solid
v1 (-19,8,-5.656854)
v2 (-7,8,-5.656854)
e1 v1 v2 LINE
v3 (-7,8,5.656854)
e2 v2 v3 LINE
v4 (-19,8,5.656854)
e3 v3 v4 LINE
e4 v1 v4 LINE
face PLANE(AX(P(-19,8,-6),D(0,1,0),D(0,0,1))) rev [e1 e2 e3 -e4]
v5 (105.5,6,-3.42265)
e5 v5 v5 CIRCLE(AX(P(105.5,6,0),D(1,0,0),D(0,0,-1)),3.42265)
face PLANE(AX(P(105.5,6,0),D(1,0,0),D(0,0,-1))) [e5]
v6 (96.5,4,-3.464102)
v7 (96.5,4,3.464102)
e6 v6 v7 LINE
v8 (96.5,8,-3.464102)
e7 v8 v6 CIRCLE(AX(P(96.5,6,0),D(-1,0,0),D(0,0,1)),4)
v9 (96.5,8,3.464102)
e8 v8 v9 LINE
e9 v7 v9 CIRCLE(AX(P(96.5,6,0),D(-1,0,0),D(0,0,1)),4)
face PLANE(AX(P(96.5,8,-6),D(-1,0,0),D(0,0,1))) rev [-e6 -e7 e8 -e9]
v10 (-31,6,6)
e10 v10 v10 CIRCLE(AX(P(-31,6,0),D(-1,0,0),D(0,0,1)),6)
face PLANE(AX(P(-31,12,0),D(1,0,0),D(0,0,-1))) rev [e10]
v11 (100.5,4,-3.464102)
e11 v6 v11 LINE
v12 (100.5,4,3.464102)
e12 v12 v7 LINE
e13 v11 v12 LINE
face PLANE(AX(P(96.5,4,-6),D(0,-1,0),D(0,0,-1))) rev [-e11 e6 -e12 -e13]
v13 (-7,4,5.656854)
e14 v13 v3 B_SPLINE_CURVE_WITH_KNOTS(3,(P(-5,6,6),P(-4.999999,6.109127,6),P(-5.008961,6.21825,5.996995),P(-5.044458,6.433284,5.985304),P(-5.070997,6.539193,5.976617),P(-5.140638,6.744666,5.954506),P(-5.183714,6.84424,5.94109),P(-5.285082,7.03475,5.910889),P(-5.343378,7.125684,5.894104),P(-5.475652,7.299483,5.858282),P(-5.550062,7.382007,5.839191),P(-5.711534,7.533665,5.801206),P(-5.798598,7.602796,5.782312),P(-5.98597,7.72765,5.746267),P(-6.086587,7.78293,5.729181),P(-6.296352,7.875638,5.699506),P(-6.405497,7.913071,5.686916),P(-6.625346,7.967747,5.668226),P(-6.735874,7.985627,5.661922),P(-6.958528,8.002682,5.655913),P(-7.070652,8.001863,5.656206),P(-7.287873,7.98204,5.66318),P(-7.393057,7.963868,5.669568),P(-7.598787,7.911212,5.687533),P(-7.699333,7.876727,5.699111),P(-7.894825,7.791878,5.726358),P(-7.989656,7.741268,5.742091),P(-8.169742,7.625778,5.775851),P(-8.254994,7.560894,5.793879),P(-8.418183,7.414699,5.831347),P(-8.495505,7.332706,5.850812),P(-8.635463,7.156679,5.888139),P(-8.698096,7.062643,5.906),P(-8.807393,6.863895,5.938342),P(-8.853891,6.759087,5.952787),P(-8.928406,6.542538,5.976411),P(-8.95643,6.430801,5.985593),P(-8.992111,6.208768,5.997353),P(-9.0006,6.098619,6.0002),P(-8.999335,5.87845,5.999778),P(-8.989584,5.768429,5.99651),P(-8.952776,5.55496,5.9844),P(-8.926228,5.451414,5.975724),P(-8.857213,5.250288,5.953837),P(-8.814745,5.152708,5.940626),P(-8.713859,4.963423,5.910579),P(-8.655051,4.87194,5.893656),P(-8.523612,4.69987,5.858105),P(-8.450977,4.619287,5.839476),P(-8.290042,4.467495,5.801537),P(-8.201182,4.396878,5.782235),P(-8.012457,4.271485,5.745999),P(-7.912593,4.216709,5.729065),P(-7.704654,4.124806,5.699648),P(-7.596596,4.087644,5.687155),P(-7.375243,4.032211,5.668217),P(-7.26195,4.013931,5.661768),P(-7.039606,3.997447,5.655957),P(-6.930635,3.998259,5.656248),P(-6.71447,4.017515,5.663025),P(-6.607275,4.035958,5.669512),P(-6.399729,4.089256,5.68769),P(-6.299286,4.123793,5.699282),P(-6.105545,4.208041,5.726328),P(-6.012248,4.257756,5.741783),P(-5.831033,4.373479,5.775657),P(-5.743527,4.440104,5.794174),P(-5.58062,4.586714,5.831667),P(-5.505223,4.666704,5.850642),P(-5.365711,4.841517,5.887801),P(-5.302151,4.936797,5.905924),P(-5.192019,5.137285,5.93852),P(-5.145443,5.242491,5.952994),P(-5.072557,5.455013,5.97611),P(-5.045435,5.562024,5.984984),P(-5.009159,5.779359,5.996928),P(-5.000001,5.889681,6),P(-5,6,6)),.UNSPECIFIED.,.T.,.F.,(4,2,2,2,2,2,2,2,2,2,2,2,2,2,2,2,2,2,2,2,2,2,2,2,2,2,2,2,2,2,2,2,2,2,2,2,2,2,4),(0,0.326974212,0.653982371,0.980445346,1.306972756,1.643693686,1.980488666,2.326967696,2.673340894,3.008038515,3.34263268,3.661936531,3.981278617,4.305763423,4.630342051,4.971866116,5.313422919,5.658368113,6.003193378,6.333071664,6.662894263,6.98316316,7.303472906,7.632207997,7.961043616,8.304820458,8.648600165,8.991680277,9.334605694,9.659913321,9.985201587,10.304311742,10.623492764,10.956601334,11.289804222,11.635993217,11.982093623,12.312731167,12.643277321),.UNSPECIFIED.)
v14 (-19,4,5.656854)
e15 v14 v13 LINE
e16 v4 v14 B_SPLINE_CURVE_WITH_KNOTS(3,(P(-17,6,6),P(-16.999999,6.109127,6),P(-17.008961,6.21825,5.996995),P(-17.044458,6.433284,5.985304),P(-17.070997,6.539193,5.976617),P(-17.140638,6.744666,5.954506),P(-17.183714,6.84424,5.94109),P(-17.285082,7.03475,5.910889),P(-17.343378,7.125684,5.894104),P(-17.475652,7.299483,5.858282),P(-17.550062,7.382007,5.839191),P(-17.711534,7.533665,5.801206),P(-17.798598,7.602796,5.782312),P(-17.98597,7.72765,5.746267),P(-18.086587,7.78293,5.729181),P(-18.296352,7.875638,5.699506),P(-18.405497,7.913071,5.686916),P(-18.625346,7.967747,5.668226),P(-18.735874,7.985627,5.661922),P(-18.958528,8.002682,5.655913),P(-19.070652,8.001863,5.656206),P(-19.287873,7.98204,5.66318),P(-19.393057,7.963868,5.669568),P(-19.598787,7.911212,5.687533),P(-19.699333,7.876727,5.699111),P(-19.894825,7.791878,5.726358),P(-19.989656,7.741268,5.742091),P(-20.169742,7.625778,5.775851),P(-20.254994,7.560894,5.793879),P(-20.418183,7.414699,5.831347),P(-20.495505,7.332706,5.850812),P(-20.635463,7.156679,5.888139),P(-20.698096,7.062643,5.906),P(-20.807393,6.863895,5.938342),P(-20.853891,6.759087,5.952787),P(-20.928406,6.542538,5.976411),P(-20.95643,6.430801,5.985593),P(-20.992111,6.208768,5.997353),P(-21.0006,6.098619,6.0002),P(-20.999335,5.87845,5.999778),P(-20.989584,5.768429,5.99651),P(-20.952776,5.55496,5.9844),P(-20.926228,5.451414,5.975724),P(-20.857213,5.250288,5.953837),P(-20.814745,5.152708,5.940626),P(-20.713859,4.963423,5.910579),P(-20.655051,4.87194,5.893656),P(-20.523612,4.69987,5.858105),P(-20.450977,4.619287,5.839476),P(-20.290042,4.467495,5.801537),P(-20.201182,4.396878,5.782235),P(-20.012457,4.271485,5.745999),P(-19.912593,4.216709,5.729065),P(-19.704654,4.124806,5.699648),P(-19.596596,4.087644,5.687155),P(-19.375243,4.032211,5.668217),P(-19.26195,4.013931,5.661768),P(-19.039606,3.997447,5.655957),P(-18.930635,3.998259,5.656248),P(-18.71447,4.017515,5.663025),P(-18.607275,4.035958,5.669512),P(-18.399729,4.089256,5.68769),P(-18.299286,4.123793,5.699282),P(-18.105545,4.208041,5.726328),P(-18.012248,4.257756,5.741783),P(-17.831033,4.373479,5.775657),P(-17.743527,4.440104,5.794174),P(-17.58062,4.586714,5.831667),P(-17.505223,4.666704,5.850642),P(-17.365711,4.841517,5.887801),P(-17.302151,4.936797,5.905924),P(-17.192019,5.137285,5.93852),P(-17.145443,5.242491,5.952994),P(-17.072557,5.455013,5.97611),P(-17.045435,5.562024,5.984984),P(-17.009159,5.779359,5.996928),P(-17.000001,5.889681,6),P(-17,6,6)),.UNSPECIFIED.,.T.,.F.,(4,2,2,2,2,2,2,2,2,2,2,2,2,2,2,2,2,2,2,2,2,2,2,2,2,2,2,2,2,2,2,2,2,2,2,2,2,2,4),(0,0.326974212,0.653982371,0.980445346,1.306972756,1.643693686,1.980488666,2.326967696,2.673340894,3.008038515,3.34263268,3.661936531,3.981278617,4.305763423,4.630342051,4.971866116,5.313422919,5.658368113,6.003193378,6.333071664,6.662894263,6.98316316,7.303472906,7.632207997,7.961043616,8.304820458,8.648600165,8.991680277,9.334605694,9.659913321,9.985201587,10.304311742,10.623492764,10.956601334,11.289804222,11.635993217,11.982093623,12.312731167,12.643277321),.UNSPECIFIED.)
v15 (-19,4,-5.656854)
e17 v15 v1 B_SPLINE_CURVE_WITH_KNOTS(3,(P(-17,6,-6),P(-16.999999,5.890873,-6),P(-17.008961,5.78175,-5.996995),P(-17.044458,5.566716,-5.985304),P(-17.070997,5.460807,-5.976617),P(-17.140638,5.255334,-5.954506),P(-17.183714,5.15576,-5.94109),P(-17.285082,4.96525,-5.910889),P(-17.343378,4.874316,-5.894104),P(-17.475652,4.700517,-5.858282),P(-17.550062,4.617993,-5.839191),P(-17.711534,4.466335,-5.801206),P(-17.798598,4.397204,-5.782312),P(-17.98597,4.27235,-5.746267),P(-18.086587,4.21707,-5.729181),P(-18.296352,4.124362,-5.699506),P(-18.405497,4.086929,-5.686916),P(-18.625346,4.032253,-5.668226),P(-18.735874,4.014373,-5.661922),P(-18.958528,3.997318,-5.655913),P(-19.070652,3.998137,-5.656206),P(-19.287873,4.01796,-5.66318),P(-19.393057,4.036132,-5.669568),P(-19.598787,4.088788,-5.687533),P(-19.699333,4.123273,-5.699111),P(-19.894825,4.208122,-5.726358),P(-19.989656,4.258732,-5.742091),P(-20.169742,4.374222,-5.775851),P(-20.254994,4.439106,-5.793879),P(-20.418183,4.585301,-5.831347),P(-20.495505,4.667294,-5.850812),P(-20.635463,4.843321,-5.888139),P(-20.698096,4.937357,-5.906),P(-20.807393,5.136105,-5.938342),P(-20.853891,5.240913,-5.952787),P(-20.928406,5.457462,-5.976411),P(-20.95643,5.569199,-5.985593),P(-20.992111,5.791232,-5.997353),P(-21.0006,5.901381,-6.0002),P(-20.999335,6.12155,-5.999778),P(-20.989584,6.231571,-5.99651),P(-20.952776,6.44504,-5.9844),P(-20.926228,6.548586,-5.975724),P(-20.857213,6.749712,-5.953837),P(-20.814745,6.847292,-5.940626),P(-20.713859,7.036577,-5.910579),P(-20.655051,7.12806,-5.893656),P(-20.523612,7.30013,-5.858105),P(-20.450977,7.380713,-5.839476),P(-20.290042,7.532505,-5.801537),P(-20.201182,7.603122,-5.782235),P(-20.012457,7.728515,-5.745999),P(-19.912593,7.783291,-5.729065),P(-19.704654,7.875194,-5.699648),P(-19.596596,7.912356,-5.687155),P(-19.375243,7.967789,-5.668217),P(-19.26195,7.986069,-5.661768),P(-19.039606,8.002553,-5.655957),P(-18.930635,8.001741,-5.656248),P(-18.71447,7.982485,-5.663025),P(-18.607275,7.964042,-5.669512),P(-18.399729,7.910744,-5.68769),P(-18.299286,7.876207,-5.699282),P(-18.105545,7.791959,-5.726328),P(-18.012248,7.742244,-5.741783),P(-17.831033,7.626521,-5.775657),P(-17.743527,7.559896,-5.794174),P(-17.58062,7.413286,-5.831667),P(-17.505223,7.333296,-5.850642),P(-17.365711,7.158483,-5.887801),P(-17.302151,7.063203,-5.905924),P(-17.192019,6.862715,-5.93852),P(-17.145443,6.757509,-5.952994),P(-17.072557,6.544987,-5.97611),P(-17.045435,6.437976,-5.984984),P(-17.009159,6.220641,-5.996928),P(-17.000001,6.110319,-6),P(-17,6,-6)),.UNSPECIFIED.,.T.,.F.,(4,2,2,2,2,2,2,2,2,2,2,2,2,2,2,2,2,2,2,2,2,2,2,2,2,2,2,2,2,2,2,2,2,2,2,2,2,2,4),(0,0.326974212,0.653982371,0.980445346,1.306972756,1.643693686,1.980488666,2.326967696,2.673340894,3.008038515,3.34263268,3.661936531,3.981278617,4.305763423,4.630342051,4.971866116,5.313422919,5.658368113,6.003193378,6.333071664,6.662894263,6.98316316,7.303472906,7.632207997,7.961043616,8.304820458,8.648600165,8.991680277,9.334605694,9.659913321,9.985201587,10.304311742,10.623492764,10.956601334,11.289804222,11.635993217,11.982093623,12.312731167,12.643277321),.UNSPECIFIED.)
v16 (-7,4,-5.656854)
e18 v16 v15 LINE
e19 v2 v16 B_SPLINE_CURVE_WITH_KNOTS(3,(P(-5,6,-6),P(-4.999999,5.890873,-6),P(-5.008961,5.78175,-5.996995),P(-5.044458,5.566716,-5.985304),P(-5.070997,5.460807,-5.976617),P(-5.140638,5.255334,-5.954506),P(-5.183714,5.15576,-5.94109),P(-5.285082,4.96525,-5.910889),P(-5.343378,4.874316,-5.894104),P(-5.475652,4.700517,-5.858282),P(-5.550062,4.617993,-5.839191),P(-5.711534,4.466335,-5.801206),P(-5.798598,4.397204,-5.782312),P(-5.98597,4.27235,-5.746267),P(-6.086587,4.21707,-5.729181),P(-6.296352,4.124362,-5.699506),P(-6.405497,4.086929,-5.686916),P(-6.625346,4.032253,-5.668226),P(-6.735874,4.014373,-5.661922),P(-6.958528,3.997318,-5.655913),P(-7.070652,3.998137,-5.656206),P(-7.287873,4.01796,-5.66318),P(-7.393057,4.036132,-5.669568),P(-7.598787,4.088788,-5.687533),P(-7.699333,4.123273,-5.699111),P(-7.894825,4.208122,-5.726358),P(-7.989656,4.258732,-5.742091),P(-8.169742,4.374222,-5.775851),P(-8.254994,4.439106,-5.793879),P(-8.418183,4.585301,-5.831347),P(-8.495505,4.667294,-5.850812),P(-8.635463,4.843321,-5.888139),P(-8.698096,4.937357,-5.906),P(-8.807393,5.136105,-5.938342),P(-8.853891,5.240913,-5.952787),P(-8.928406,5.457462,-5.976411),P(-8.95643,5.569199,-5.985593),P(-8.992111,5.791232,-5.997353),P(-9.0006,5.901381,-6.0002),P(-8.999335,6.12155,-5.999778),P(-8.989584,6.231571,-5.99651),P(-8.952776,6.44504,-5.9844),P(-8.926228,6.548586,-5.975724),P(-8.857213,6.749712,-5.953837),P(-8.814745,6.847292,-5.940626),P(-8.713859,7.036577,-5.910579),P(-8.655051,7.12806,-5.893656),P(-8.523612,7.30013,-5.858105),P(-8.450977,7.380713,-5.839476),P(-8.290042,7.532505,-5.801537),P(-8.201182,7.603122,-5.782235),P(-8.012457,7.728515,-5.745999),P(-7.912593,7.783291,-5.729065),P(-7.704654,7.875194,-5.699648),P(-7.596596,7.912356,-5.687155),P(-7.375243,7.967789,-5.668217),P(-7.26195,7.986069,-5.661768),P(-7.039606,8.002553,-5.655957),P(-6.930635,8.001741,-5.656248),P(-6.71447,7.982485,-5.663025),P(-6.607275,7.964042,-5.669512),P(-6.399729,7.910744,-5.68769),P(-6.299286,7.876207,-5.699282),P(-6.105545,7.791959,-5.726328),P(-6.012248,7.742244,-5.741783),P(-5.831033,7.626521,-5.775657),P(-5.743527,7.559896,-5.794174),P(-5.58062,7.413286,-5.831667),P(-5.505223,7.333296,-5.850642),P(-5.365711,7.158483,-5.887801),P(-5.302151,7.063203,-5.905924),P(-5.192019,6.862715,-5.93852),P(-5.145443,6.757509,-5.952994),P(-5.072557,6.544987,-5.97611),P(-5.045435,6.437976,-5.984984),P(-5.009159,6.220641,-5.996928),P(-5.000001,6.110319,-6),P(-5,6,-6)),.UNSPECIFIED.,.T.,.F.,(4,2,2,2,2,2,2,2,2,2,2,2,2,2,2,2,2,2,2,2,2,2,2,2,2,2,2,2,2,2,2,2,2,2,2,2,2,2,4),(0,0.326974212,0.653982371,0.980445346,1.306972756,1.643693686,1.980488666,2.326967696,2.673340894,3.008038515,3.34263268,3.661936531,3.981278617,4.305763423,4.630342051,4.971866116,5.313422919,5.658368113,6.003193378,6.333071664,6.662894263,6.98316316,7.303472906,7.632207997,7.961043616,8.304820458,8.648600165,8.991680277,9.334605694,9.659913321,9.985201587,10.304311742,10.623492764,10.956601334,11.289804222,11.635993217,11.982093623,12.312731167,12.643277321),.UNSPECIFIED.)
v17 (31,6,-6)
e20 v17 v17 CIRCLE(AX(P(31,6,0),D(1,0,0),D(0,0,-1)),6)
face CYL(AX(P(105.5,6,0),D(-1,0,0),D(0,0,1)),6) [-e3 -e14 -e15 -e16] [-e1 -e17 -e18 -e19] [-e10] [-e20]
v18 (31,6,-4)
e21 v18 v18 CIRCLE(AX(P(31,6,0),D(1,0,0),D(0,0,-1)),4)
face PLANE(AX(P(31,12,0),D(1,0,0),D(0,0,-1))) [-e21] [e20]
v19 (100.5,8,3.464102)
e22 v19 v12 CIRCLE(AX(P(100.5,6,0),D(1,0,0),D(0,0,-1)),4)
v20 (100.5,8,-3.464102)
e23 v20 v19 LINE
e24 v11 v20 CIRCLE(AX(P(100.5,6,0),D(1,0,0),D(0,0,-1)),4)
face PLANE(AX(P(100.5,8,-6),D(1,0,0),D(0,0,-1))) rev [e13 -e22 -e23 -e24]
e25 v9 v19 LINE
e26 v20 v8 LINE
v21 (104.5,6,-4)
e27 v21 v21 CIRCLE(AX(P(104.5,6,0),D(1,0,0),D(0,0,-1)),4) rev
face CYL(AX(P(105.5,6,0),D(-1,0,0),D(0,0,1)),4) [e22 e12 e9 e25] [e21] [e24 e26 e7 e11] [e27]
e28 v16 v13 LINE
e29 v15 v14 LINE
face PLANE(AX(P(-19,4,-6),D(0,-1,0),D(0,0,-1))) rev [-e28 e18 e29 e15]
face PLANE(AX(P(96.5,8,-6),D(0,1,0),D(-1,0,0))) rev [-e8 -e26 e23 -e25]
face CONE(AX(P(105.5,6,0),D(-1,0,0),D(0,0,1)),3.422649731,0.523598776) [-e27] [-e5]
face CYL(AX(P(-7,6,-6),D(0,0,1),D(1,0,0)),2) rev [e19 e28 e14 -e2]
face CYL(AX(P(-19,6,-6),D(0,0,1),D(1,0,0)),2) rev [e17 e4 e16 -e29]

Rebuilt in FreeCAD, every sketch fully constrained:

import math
import FreeCAD as App
import Part
import Sketcher

V = App.Vector
Q = App.Units.Quantity


def edges_at(feature, points):
    """Names of the edges that pass closest to the given points."""
    edges = feature.Shape.Edges
    near = lambda p: min(range(len(edges)), key=lambda i: edges[i].distToShape(Part.Vertex(*p))[0])
    return sorted({f"Edge{near(p) + 1}" for p in points})


def add_polygon(sketch, points):
    """Adds a closed chain of lines whose ends are joined by coincident constraints."""
    first, n = sketch.GeometryCount, len(points)
    for a, b in zip(points, points[1:] + points[:1]):
        sketch.addGeometry(Part.LineSegment(App.Vector(*a, 0), App.Vector(*b, 0)), False)
    for i in range(n):
        sketch.addConstraint(Sketcher.Constraint("Coincident", first + i, 2, first + (i + 1) % n, 1))

doc = App.newDocument("Part")
body = doc.addObject("PartDesign::Body", "Body")

# Sketch on XZ plane
sketch1 = body.newObject("Sketcher::SketchObject", "Sketch")
sketch1.AttachmentSupport = (doc.getObject("XZ_Plane"), [""])
sketch1.MapMode = "FlatFace"
add_polygon(sketch1, [(-31, -11), (-31, 11), (31, 11), (31, -11)])  # lines 0-3
sketch1.addConstraint([
    Sketcher.Constraint("Vertical", 0),
    Sketcher.Constraint("Horizontal", 1),
    Sketcher.Constraint("Vertical", 2),
    Sketcher.Constraint("Horizontal", 3),
    Sketcher.Constraint("Symmetric", 0, 2, 2, 2, -1, 1),
    Sketcher.Constraint("DistanceX", 1, 1, 1, 2, Q("62 mm")),
    Sketcher.Constraint("DistanceY", 0, 1, 0, 2, Q("21.285714 mm")),
])
pad1 = body.newObject("PartDesign::Pad", "Pad")
pad1.Profile = sketch1
pad1.Length = 12
pad1.Reversed = True

# Sketch on YZ plane
sketch2 = body.newObject("Sketcher::SketchObject", "Sketch001")
sketch2.AttachmentSupport = (doc.getObject("YZ_Plane"), [""])
sketch2.MapMode = "FlatFace"
sketch2.AttachmentOffset = App.Placement(V(0, 0, 31), App.Rotation())
sketch2.addGeometry(Part.Circle(V(6, 0, 0), V(0, 0, 1), 4), False)
sketch2.addConstraint([
    Sketcher.Constraint("PointOnObject", 0, 3, -1),
    Sketcher.Constraint("Diameter", 0, Q("8 mm")),
    Sketcher.Constraint("DistanceX", -1, 1, 0, 3, Q("6 mm")),
])
pad2 = body.newObject("PartDesign::Pad", "Pad001")
pad2.Profile = sketch2
pad2.Length = 74.5

# Sketch on YZ plane
sketch3 = body.newObject("Sketcher::SketchObject", "Sketch002")
sketch3.AttachmentSupport = (doc.getObject("YZ_Plane"), [""])
sketch3.MapMode = "FlatFace"
sketch3.AttachmentOffset = App.Placement(V(0, 0, -31), App.Rotation())
add_polygon(sketch3, [(27, -26), (-15, -26), (-15, 26), (27, 26)])  # lines 0-3
sketch3.addGeometry(Part.Circle(V(6, 0, 0), V(0, 0, 1), 6), False)  # 4
sketch3.addConstraint([
    Sketcher.Constraint("Horizontal", 0),
    Sketcher.Constraint("Vertical", 1),
    Sketcher.Constraint("Horizontal", 2),
    Sketcher.Constraint("Vertical", 3),
    Sketcher.Constraint("PointOnObject", 4, 3, -1),
    Sketcher.Constraint("Diameter", 4, Q("12 mm")),
    Sketcher.Constraint("DistanceX", -1, 1, 4, 3, Q("6 mm")),
    Sketcher.Constraint("DistanceY", 1, 1, 1, 2, Q("51.02 mm")),
    Sketcher.Constraint("DistanceX", 0, 2, 0, 1, Q("41.734 mm")),
    Sketcher.Constraint("DistanceY", 0, 2, -1, 1, Q("25.51 mm")),
    Sketcher.Constraint("DistanceX", 0, 2, -1, 1, Q("14.867 mm")),
])
pocket1 = body.newObject("PartDesign::Pocket", "Pocket")
pocket1.Profile = sketch3
pocket1.Type = "ThroughAll"
pocket1.Reversed = True

# Sketch on XY plane
sketch4 = body.newObject("Sketcher::SketchObject", "Sketch003")
sketch4.AttachmentSupport = (doc.getObject("XY_Plane"), [""])
sketch4.MapMode = "FlatFace"
sketch4.addGeometry(Part.LineSegment(V(-7, 8, 0), V(-19, 8, 0)), False)  # 0
sketch4.addGeometry(Part.ArcOfCircle(Part.Circle(V(-19, 6, 0), V(0, 0, 1), 2), math.radians(90), math.radians(270)), False)  # 1
sketch4.addGeometry(Part.LineSegment(V(-19, 4, 0), V(-7, 4, 0)), False)  # 2
sketch4.addGeometry(Part.ArcOfCircle(Part.Circle(V(-7, 6, 0), V(0, 0, 1), 2), math.radians(-90), math.radians(90)), False)  # 3
add_polygon(sketch4, [(96.5, 8), (96.5, 4), (100.5, 4), (100.5, 8)])  # lines 4-7
sketch4.addConstraint([
    Sketcher.Constraint("Tangent", 0, 2, 1, 1),
    Sketcher.Constraint("Tangent", 1, 2, 2, 1),
    Sketcher.Constraint("Tangent", 2, 2, 3, 1),
    Sketcher.Constraint("Tangent", 3, 2, 0, 1),
    Sketcher.Constraint("Horizontal", 0),
    Sketcher.Constraint("Horizontal", 2),
    Sketcher.Constraint("Vertical", 4),
    Sketcher.Constraint("Horizontal", 5),
    Sketcher.Constraint("Vertical", 6),
    Sketcher.Constraint("Horizontal", 7),
    Sketcher.Constraint("Horizontal", 2, 2, 4, 2),
    Sketcher.Constraint("Horizontal", 3, 2, 6, 2),
    Sketcher.Constraint("Equal", 7, 4),
    Sketcher.Constraint("Radius", 1, Q("2 mm")),
    Sketcher.Constraint("DistanceX", 0, 2, 0, 1, Q("12 mm")),
    Sketcher.Constraint("DistanceX", 1, 3, -1, 1, Q("19 mm")),
    Sketcher.Constraint("DistanceY", -1, 1, 1, 3, Q("6 mm")),
    Sketcher.Constraint("DistanceX", -1, 1, 4, 2, Q("96.5 mm")),
])
pocket2 = body.newObject("PartDesign::Pocket", "Pocket001")
pocket2.Profile = sketch4
pocket2.Type = "ThroughAll"
pocket2.Midplane = True
doc.recompute()

chamfer = body.newObject("PartDesign::Chamfer", "Chamfer")
chamfer.Base = (pocket2, edges_at(pocket2, [(105.5, 6, 4)]))
chamfer.ChamferType = "Two distances"
chamfer.Size = 1
chamfer.Size2 = 0.57735

doc.recompute()
